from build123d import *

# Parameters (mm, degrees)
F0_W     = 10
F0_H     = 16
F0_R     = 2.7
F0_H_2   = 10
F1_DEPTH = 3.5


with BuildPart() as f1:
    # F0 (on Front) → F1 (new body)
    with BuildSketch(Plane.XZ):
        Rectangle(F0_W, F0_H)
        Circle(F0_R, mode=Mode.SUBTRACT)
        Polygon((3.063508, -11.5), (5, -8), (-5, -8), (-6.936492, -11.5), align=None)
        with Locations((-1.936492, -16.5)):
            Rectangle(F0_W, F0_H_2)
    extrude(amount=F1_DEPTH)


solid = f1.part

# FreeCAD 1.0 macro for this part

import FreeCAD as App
import Part
import Sketcher

V = App.Vector
Q = App.Units.Quantity

doc = App.newDocument("Part")
params = doc.addObject("Spreadsheet::Sheet", "Params")
for row, (alias, value) in enumerate([
    ("sketch1_diameter", "5.4 mm"),
    ("sketch1_width", "10 mm"),
    ("sketch1_height", "16 mm"),
    ("sketch1_length", "4 mm"),
    ("pad1_length", "3.5 mm"),
], start=1):
    params.set(f"A{row}", alias)
    params.set(f"B{row}", "=" + value)
    params.setAlias(f"B{row}", alias)

body = doc.addObject("PartDesign::Body", "Body")

# Sketch on XZ plane
sketch1 = doc.addObject("Sketcher::SketchObject", "Sketch")
body.addObject(sketch1)
sketch1.AttachmentSupport = (doc.XZ_Plane, [""])
sketch1.MapMode = "FlatFace"
sketch1.addGeometry([
    Part.LineSegment(V(-5, 8, 0), V(-5, -8, 0)),  # 0
    Part.LineSegment(V(-5, -8, 0), V(-6.9, -11.5, 0)),  # 1
    Part.LineSegment(V(-6.9, -11.5, 0), V(-6.9, -21.5, 0)),  # 2
    Part.LineSegment(V(-6.9, -21.5, 0), V(3.1, -21.5, 0)),  # 3
    Part.LineSegment(V(3.1, -21.5, 0), V(3.1, -11.5, 0)),  # 4
    Part.LineSegment(V(3.1, -11.5, 0), V(5, -8, 0)),  # 5
    Part.LineSegment(V(5, -8, 0), V(5, 8, 0)),  # 6
    Part.LineSegment(V(5, 8, 0), V(-5, 8, 0)),  # 7
    Part.Circle(V(0, 0, 0), V(0, 0, 1), 2.7),  # 8
], False)
sketch1.addConstraint([
    Sketcher.Constraint("Coincident", 0, 2, 1, 1),
    Sketcher.Constraint("Coincident", 1, 2, 2, 1),
    Sketcher.Constraint("Coincident", 2, 2, 3, 1),
    Sketcher.Constraint("Coincident", 3, 2, 4, 1),
    Sketcher.Constraint("Coincident", 4, 2, 5, 1),
    Sketcher.Constraint("Coincident", 5, 2, 6, 1),
    Sketcher.Constraint("Coincident", 6, 2, 7, 1),
    Sketcher.Constraint("Coincident", 7, 2, 0, 1),
    Sketcher.Constraint("Vertical", 0),
    Sketcher.Constraint("Vertical", 2),
    Sketcher.Constraint("Horizontal", 3),
    Sketcher.Constraint("Vertical", 4),
    Sketcher.Constraint("Vertical", 6),
    Sketcher.Constraint("Horizontal", 7),
    Sketcher.Constraint("Coincident", 8, 3, -1, 1),
    Sketcher.Constraint("Symmetric", 0, 2, 6, 2, -1, 1),
    Sketcher.Constraint("Parallel", 1, 5),
    Sketcher.Constraint("Horizontal", 1, 2, 4, 2),
    Sketcher.Constraint("Horizontal", 0, 2, 5, 2),
    Sketcher.Constraint("Equal", 7, 2),
    Sketcher.Constraint("Diameter", 8, Q("5.4 mm")),
    Sketcher.Constraint("DistanceX", 3, 1, 3, 2, Q("10 mm")),
    Sketcher.Constraint("DistanceY", 0, 2, 0, 1, Q("16 mm")),
    Sketcher.Constraint("Distance", 1, Q("4 mm")),
    Sketcher.Constraint("DistanceY", 1, 2, -1, 1, Q("11.5 mm")),
])
sketch1.setExpression("Constraints[20]", "Params.sketch1_diameter")
sketch1.setExpression("Constraints[21]", "Params.sketch1_width")
sketch1.setExpression("Constraints[22]", "Params.sketch1_height")
sketch1.setExpression("Constraints[23]", "Params.sketch1_length")
pad1 = doc.addObject("PartDesign::Pad", "Pad")
body.addObject(pad1)
pad1.Profile = sketch1
pad1.setExpression("Length", "Params.pad1_length")

doc.recompute()
